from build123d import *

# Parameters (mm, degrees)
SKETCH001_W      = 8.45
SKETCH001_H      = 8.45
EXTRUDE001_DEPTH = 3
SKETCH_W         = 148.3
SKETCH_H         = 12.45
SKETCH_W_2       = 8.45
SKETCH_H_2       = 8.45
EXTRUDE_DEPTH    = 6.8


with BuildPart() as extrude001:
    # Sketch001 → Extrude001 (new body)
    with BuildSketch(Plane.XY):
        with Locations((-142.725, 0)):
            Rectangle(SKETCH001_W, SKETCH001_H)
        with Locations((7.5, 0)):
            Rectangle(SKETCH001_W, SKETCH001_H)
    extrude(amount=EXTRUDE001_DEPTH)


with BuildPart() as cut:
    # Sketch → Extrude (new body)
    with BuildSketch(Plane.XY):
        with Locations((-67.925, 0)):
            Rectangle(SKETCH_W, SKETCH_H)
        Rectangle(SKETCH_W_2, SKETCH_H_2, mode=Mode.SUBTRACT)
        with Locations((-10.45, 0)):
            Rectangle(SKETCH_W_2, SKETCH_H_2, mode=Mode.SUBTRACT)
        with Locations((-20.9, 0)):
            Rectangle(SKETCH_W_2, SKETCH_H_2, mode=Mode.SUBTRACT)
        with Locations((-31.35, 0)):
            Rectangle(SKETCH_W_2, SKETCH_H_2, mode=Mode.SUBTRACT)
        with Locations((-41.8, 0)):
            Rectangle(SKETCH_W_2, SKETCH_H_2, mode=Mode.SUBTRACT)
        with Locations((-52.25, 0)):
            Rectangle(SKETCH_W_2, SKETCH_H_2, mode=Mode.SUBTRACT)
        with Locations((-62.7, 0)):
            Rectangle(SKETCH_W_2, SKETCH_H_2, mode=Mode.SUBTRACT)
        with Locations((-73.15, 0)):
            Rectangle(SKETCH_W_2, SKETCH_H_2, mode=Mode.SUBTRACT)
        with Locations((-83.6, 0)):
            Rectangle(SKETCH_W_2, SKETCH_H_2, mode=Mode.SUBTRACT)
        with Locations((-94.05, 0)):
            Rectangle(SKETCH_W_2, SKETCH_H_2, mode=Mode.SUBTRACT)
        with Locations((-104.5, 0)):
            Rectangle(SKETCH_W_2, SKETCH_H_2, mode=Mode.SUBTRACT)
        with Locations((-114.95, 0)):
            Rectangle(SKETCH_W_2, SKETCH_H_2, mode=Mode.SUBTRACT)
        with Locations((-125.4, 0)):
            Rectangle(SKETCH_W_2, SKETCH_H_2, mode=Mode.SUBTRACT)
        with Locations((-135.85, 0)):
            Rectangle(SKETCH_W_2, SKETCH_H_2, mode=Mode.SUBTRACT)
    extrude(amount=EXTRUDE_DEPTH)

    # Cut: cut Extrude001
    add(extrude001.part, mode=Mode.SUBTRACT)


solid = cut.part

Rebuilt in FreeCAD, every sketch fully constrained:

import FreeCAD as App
import Part
import Sketcher
Q = App.Units.Quantity

doc = App.newDocument("Part")
params = doc.addObject("Spreadsheet::Sheet", "Params")
for row, (alias, value) in enumerate([
    ("sketch1_width", "8.45 mm"),
    ("pad1_length", "3 mm"),
    ("sketch2_width", "148.3 mm"),
    ("pad2_length", "6.8 mm"),
], start=1):
    params.set(f"A{row}", alias)
    params.set(f"B{row}", "=" + value)
    params.setAlias(f"B{row}", alias)

body = doc.addObject("PartDesign::Body", "Body")
body.AllowCompound = True

sketch1 = body.newObject("Sketcher::SketchObject", "Sketch")
sketch1.AttachmentSupport = (doc.getObject("XY_Plane"), [""])
sketch1.MapMode = "FlatFace"
sketch1.addGeometry(Part.LineSegment(App.Vector(-147, 4, 0), App.Vector(-147, -4, 0)), False)
sketch1.addGeometry(Part.LineSegment(App.Vector(-147, -4, 0), App.Vector(-138, -4, 0)), False)
sketch1.addGeometry(Part.LineSegment(App.Vector(-138, -4, 0), App.Vector(-138, 4, 0)), False)
sketch1.addGeometry(Part.LineSegment(App.Vector(-138, 4, 0), App.Vector(-147, 4, 0)), False)
sketch1.addGeometry(Part.LineSegment(App.Vector(3, 4, 0), App.Vector(3, -4, 0)), False)
sketch1.addGeometry(Part.LineSegment(App.Vector(3, -4, 0), App.Vector(12, -4, 0)), False)
sketch1.addGeometry(Part.LineSegment(App.Vector(12, -4, 0), App.Vector(12, 4, 0)), False)
sketch1.addGeometry(Part.LineSegment(App.Vector(12, 4, 0), App.Vector(3, 4, 0)), False)
sketch1.addConstraint(Sketcher.Constraint("Coincident", 0, 2, 1, 1))
sketch1.addConstraint(Sketcher.Constraint("Coincident", 1, 2, 2, 1))
sketch1.addConstraint(Sketcher.Constraint("Coincident", 2, 2, 3, 1))
sketch1.addConstraint(Sketcher.Constraint("Coincident", 3, 2, 0, 1))
sketch1.addConstraint(Sketcher.Constraint("Coincident", 4, 2, 5, 1))
sketch1.addConstraint(Sketcher.Constraint("Coincident", 5, 2, 6, 1))
sketch1.addConstraint(Sketcher.Constraint("Coincident", 6, 2, 7, 1))
sketch1.addConstraint(Sketcher.Constraint("Coincident", 7, 2, 4, 1))
sketch1.addConstraint(Sketcher.Constraint("Vertical", 0))
sketch1.addConstraint(Sketcher.Constraint("Horizontal", 1))
sketch1.addConstraint(Sketcher.Constraint("Vertical", 2))
sketch1.addConstraint(Sketcher.Constraint("Horizontal", 3))
sketch1.addConstraint(Sketcher.Constraint("Vertical", 4))
sketch1.addConstraint(Sketcher.Constraint("Horizontal", 5))
sketch1.addConstraint(Sketcher.Constraint("Vertical", 6))
sketch1.addConstraint(Sketcher.Constraint("Horizontal", 7))
sketch1.addConstraint(Sketcher.Constraint("Horizontal", 1, 2, 4, 2))
sketch1.addConstraint(Sketcher.Constraint("Horizontal", 3, 2, 6, 2))
sketch1.addConstraint(Sketcher.Constraint("Equal", 3, 5))
sketch1.addConstraint(Sketcher.Constraint("Equal", 7, 0))
sketch1.addConstraint(Sketcher.Constraint("DistanceX", 1, 1, 1, 2, Q("8.45 mm")))
sketch1.addConstraint(Sketcher.Constraint("DistanceX", 1, 2, -1, 1, Q("138.5 mm")))
sketch1.addConstraint(Sketcher.Constraint("DistanceY", 0, 2, -1, 1, Q("4.225 mm")))
sketch1.addConstraint(Sketcher.Constraint("DistanceX", -1, 1, 4, 2, Q("3.275 mm")))
sketch1.setExpression("Constraints[20]", "Params.sketch1_width")
pad1 = body.newObject("PartDesign::Pad", "Pad")
pad1.Profile = sketch1
pad1.setExpression("Length", "Params.pad1_length")
body2 = doc.addObject("PartDesign::Body", "Body001")

sketch2 = body2.newObject("Sketcher::SketchObject", "Sketch001")
sketch2.AttachmentSupport = (doc.getObject("XY_Plane001"), [""])
sketch2.MapMode = "FlatFace"
sketch2.addGeometry(Part.LineSegment(App.Vector(-142, 6, 0), App.Vector(-142, -6, 0)), False)
sketch2.addGeometry(Part.LineSegment(App.Vector(-142, -6, 0), App.Vector(6, -6, 0)), False)
sketch2.addGeometry(Part.LineSegment(App.Vector(6, -6, 0), App.Vector(6, 6, 0)), False)
sketch2.addGeometry(Part.LineSegment(App.Vector(6, 6, 0), App.Vector(-142, 6, 0)), False)
sketch2.addGeometry(Part.LineSegment(App.Vector(-132, -4, 0), App.Vector(-140, -4, 0)), False)
sketch2.addGeometry(Part.LineSegment(App.Vector(-140, -4, 0), App.Vector(-140, 4, 0)), False)
sketch2.addGeometry(Part.LineSegment(App.Vector(-140, 4, 0), App.Vector(-132, 4, 0)), False)
sketch2.addGeometry(Part.LineSegment(App.Vector(-132, 4, 0), App.Vector(-132, -4, 0)), False)
sketch2.addGeometry(Part.LineSegment(App.Vector(-121, -4, 0), App.Vector(-130, -4, 0)), False)
sketch2.addGeometry(Part.LineSegment(App.Vector(-130, -4, 0), App.Vector(-130, 4, 0)), False)
sketch2.addGeometry(Part.LineSegment(App.Vector(-130, 4, 0), App.Vector(-121, 4, 0)), False)
sketch2.addGeometry(Part.LineSegment(App.Vector(-121, 4, 0), App.Vector(-121, -4, 0)), False)
sketch2.addGeometry(Part.LineSegment(App.Vector(-111, -4, 0), App.Vector(-119, -4, 0)), False)
sketch2.addGeometry(Part.LineSegment(App.Vector(-119, -4, 0), App.Vector(-119, 4, 0)), False)
sketch2.addGeometry(Part.LineSegment(App.Vector(-119, 4, 0), App.Vector(-111, 4, 0)), False)
sketch2.addGeometry(Part.LineSegment(App.Vector(-111, 4, 0), App.Vector(-111, -4, 0)), False)
sketch2.addGeometry(Part.LineSegment(App.Vector(-100, -4, 0), App.Vector(-109, -4, 0)), False)
sketch2.addGeometry(Part.LineSegment(App.Vector(-109, -4, 0), App.Vector(-109, 4, 0)), False)
sketch2.addGeometry(Part.LineSegment(App.Vector(-109, 4, 0), App.Vector(-100, 4, 0)), False)
sketch2.addGeometry(Part.LineSegment(App.Vector(-100, 4, 0), App.Vector(-100, -4, 0)), False)
sketch2.addGeometry(Part.LineSegment(App.Vector(-90, -4, 0), App.Vector(-98, -4, 0)), False)
sketch2.addGeometry(Part.LineSegment(App.Vector(-98, -4, 0), App.Vector(-98, 4, 0)), False)
sketch2.addGeometry(Part.LineSegment(App.Vector(-98, 4, 0), App.Vector(-90, 4, 0)), False)
sketch2.addGeometry(Part.LineSegment(App.Vector(-90, 4, 0), App.Vector(-90, -4, 0)), False)
sketch2.addGeometry(Part.LineSegment(App.Vector(-79, -4, 0), App.Vector(-88, -4, 0)), False)
sketch2.addGeometry(Part.LineSegment(App.Vector(-88, -4, 0), App.Vector(-88, 4, 0)), False)
sketch2.addGeometry(Part.LineSegment(App.Vector(-88, 4, 0), App.Vector(-79, 4, 0)), False)
sketch2.addGeometry(Part.LineSegment(App.Vector(-79, 4, 0), App.Vector(-79, -4, 0)), False)
sketch2.addGeometry(Part.LineSegment(App.Vector(-69, -4, 0), App.Vector(-77, -4, 0)), False)
sketch2.addGeometry(Part.LineSegment(App.Vector(-77, -4, 0), App.Vector(-77, 4, 0)), False)
sketch2.addGeometry(Part.LineSegment(App.Vector(-77, 4, 0), App.Vector(-69, 4, 0)), False)
sketch2.addGeometry(Part.LineSegment(App.Vector(-69, 4, 0), App.Vector(-69, -4, 0)), False)
sketch2.addGeometry(Part.LineSegment(App.Vector(-58, -4, 0), App.Vector(-67, -4, 0)), False)
sketch2.addGeometry(Part.LineSegment(App.Vector(-67, -4, 0), App.Vector(-67, 4, 0)), False)
sketch2.addGeometry(Part.LineSegment(App.Vector(-67, 4, 0), App.Vector(-58, 4, 0)), False)
sketch2.addGeometry(Part.LineSegment(App.Vector(-58, 4, 0), App.Vector(-58, -4, 0)), False)
sketch2.addGeometry(Part.LineSegment(App.Vector(-48, -4, 0), App.Vector(-56, -4, 0)), False)
sketch2.addGeometry(Part.LineSegment(App.Vector(-56, -4, 0), App.Vector(-56, 4, 0)), False)
sketch2.addGeometry(Part.LineSegment(App.Vector(-56, 4, 0), App.Vector(-48, 4, 0)), False)
sketch2.addGeometry(Part.LineSegment(App.Vector(-48, 4, 0), App.Vector(-48, -4, 0)), False)
sketch2.addGeometry(Part.LineSegment(App.Vector(-38, -4, 0), App.Vector(-46, -4, 0)), False)
sketch2.addGeometry(Part.LineSegment(App.Vector(-46, -4, 0), App.Vector(-46, 4, 0)), False)
sketch2.addGeometry(Part.LineSegment(App.Vector(-46, 4, 0), App.Vector(-38, 4, 0)), False)
sketch2.addGeometry(Part.LineSegment(App.Vector(-38, 4, 0), App.Vector(-38, -4, 0)), False)
sketch2.addGeometry(Part.LineSegment(App.Vector(-27, -4, 0), App.Vector(-36, -4, 0)), False)
sketch2.addGeometry(Part.LineSegment(App.Vector(-36, -4, 0), App.Vector(-36, 4, 0)), False)
sketch2.addGeometry(Part.LineSegment(App.Vector(-36, 4, 0), App.Vector(-27, 4, 0)), False)
sketch2.addGeometry(Part.LineSegment(App.Vector(-27, 4, 0), App.Vector(-27, -4, 0)), False)
sketch2.addGeometry(Part.LineSegment(App.Vector(-17, -4, 0), App.Vector(-25, -4, 0)), False)
sketch2.addGeometry(Part.LineSegment(App.Vector(-25, -4, 0), App.Vector(-25, 4, 0)), False)
sketch2.addGeometry(Part.LineSegment(App.Vector(-25, 4, 0), App.Vector(-17, 4, 0)), False)
sketch2.addGeometry(Part.LineSegment(App.Vector(-17, 4, 0), App.Vector(-17, -4, 0)), False)
sketch2.addGeometry(Part.LineSegment(App.Vector(-6, -4, 0), App.Vector(-15, -4, 0)), False)
sketch2.addGeometry(Part.LineSegment(App.Vector(-15, -4, 0), App.Vector(-15, 4, 0)), False)
sketch2.addGeometry(Part.LineSegment(App.Vector(-15, 4, 0), App.Vector(-6, 4, 0)), False)
sketch2.addGeometry(Part.LineSegment(App.Vector(-6, 4, 0), App.Vector(-6, -4, 0)), False)
sketch2.addGeometry(Part.LineSegment(App.Vector(4, -4, 0), App.Vector(-4, -4, 0)), False)
sketch2.addGeometry(Part.LineSegment(App.Vector(-4, -4, 0), App.Vector(-4, 4, 0)), False)
sketch2.addGeometry(Part.LineSegment(App.Vector(-4, 4, 0), App.Vector(4, 4, 0)), False)
sketch2.addGeometry(Part.LineSegment(App.Vector(4, 4, 0), App.Vector(4, -4, 0)), False)
sketch2.addConstraint(Sketcher.Constraint("Coincident", 0, 2, 1, 1))
sketch2.addConstraint(Sketcher.Constraint("Coincident", 1, 2, 2, 1))
sketch2.addConstraint(Sketcher.Constraint("Coincident", 2, 2, 3, 1))
sketch2.addConstraint(Sketcher.Constraint("Coincident", 3, 2, 0, 1))
sketch2.addConstraint(Sketcher.Constraint("Coincident", 4, 2, 5, 1))
sketch2.addConstraint(Sketcher.Constraint("Coincident", 5, 2, 6, 1))
sketch2.addConstraint(Sketcher.Constraint("Coincident", 6, 2, 7, 1))
sketch2.addConstraint(Sketcher.Constraint("Coincident", 7, 2, 4, 1))
sketch2.addConstraint(Sketcher.Constraint("Coincident", 8, 2, 9, 1))
sketch2.addConstraint(Sketcher.Constraint("Coincident", 9, 2, 10, 1))
sketch2.addConstraint(Sketcher.Constraint("Coincident", 10, 2, 11, 1))
sketch2.addConstraint(Sketcher.Constraint("Coincident", 11, 2, 8, 1))
sketch2.addConstraint(Sketcher.Constraint("Coincident", 12, 2, 13, 1))
sketch2.addConstraint(Sketcher.Constraint("Coincident", 13, 2, 14, 1))
sketch2.addConstraint(Sketcher.Constraint("Coincident", 14, 2, 15, 1))
sketch2.addConstraint(Sketcher.Constraint("Coincident", 15, 2, 12, 1))
sketch2.addConstraint(Sketcher.Constraint("Coincident", 16, 2, 17, 1))
sketch2.addConstraint(Sketcher.Constraint("Coincident", 17, 2, 18, 1))
sketch2.addConstraint(Sketcher.Constraint("Coincident", 18, 2, 19, 1))
sketch2.addConstraint(Sketcher.Constraint("Coincident", 19, 2, 16, 1))
sketch2.addConstraint(Sketcher.Constraint("Coincident", 20, 2, 21, 1))
sketch2.addConstraint(Sketcher.Constraint("Coincident", 21, 2, 22, 1))
sketch2.addConstraint(Sketcher.Constraint("Coincident", 22, 2, 23, 1))
sketch2.addConstraint(Sketcher.Constraint("Coincident", 23, 2, 20, 1))
sketch2.addConstraint(Sketcher.Constraint("Coincident", 24, 2, 25, 1))
sketch2.addConstraint(Sketcher.Constraint("Coincident", 25, 2, 26, 1))
sketch2.addConstraint(Sketcher.Constraint("Coincident", 26, 2, 27, 1))
sketch2.addConstraint(Sketcher.Constraint("Coincident", 27, 2, 24, 1))
sketch2.addConstraint(Sketcher.Constraint("Coincident", 28, 2, 29, 1))
sketch2.addConstraint(Sketcher.Constraint("Coincident", 29, 2, 30, 1))
sketch2.addConstraint(Sketcher.Constraint("Coincident", 30, 2, 31, 1))
sketch2.addConstraint(Sketcher.Constraint("Coincident", 31, 2, 28, 1))
sketch2.addConstraint(Sketcher.Constraint("Coincident", 32, 2, 33, 1))
sketch2.addConstraint(Sketcher.Constraint("Coincident", 33, 2, 34, 1))
sketch2.addConstraint(Sketcher.Constraint("Coincident", 34, 2, 35, 1))
sketch2.addConstraint(Sketcher.Constraint("Coincident", 35, 2, 32, 1))
sketch2.addConstraint(Sketcher.Constraint("Coincident", 36, 2, 37, 1))
sketch2.addConstraint(Sketcher.Constraint("Coincident", 37, 2, 38, 1))
sketch2.addConstraint(Sketcher.Constraint("Coincident", 38, 2, 39, 1))
sketch2.addConstraint(Sketcher.Constraint("Coincident", 39, 2, 36, 1))
sketch2.addConstraint(Sketcher.Constraint("Coincident", 40, 2, 41, 1))
sketch2.addConstraint(Sketcher.Constraint("Coincident", 41, 2, 42, 1))
sketch2.addConstraint(Sketcher.Constraint("Coincident", 42, 2, 43, 1))
sketch2.addConstraint(Sketcher.Constraint("Coincident", 43, 2, 40, 1))
sketch2.addConstraint(Sketcher.Constraint("Coincident", 44, 2, 45, 1))
sketch2.addConstraint(Sketcher.Constraint("Coincident", 45, 2, 46, 1))
sketch2.addConstraint(Sketcher.Constraint("Coincident", 46, 2, 47, 1))
sketch2.addConstraint(Sketcher.Constraint("Coincident", 47, 2, 44, 1))
sketch2.addConstraint(Sketcher.Constraint("Coincident", 48, 2, 49, 1))
sketch2.addConstraint(Sketcher.Constraint("Coincident", 49, 2, 50, 1))
sketch2.addConstraint(Sketcher.Constraint("Coincident", 50, 2, 51, 1))
sketch2.addConstraint(Sketcher.Constraint("Coincident", 51, 2, 48, 1))
sketch2.addConstraint(Sketcher.Constraint("Coincident", 52, 2, 53, 1))
sketch2.addConstraint(Sketcher.Constraint("Coincident", 53, 2, 54, 1))
sketch2.addConstraint(Sketcher.Constraint("Coincident", 54, 2, 55, 1))
sketch2.addConstraint(Sketcher.Constraint("Coincident", 55, 2, 52, 1))
sketch2.addConstraint(Sketcher.Constraint("Coincident", 56, 2, 57, 1))
sketch2.addConstraint(Sketcher.Constraint("Coincident", 57, 2, 58, 1))
sketch2.addConstraint(Sketcher.Constraint("Coincident", 58, 2, 59, 1))
sketch2.addConstraint(Sketcher.Constraint("Coincident", 59, 2, 56, 1))
sketch2.addConstraint(Sketcher.Constraint("Vertical", 0))
sketch2.addConstraint(Sketcher.Constraint("Horizontal", 1))
sketch2.addConstraint(Sketcher.Constraint("Vertical", 2))
sketch2.addConstraint(Sketcher.Constraint("Horizontal", 3))
sketch2.addConstraint(Sketcher.Constraint("Horizontal", 4))
sketch2.addConstraint(Sketcher.Constraint("Vertical", 5))
sketch2.addConstraint(Sketcher.Constraint("Horizontal", 6))
sketch2.addConstraint(Sketcher.Constraint("Vertical", 7))
sketch2.addConstraint(Sketcher.Constraint("Horizontal", 8))
sketch2.addConstraint(Sketcher.Constraint("Vertical", 9))
sketch2.addConstraint(Sketcher.Constraint("Horizontal", 10))
sketch2.addConstraint(Sketcher.Constraint("Vertical", 11))
sketch2.addConstraint(Sketcher.Constraint("Horizontal", 12))
sketch2.addConstraint(Sketcher.Constraint("Vertical", 13))
sketch2.addConstraint(Sketcher.Constraint("Horizontal", 14))
sketch2.addConstraint(Sketcher.Constraint("Vertical", 15))
sketch2.addConstraint(Sketcher.Constraint("Horizontal", 16))
sketch2.addConstraint(Sketcher.Constraint("Vertical", 17))
sketch2.addConstraint(Sketcher.Constraint("Horizontal", 18))
sketch2.addConstraint(Sketcher.Constraint("Vertical", 19))
sketch2.addConstraint(Sketcher.Constraint("Horizontal", 20))
sketch2.addConstraint(Sketcher.Constraint("Vertical", 21))
sketch2.addConstraint(Sketcher.Constraint("Horizontal", 22))
sketch2.addConstraint(Sketcher.Constraint("Vertical", 23))
sketch2.addConstraint(Sketcher.Constraint("Horizontal", 24))
sketch2.addConstraint(Sketcher.Constraint("Vertical", 25))
sketch2.addConstraint(Sketcher.Constraint("Horizontal", 26))
sketch2.addConstraint(Sketcher.Constraint("Vertical", 27))
sketch2.addConstraint(Sketcher.Constraint("Horizontal", 28))
sketch2.addConstraint(Sketcher.Constraint("Vertical", 29))
sketch2.addConstraint(Sketcher.Constraint("Horizontal", 30))
sketch2.addConstraint(Sketcher.Constraint("Vertical", 31))
sketch2.addConstraint(Sketcher.Constraint("Horizontal", 32))
sketch2.addConstraint(Sketcher.Constraint("Vertical", 33))
sketch2.addConstraint(Sketcher.Constraint("Horizontal", 34))
sketch2.addConstraint(Sketcher.Constraint("Vertical", 35))
sketch2.addConstraint(Sketcher.Constraint("Horizontal", 36))
sketch2.addConstraint(Sketcher.Constraint("Vertical", 37))
sketch2.addConstraint(Sketcher.Constraint("Horizontal", 38))
sketch2.addConstraint(Sketcher.Constraint("Vertical", 39))
sketch2.addConstraint(Sketcher.Constraint("Horizontal", 40))
sketch2.addConstraint(Sketcher.Constraint("Vertical", 41))
sketch2.addConstraint(Sketcher.Constraint("Horizontal", 42))
sketch2.addConstraint(Sketcher.Constraint("Vertical", 43))
sketch2.addConstraint(Sketcher.Constraint("Horizontal", 44))
sketch2.addConstraint(Sketcher.Constraint("Vertical", 45))
sketch2.addConstraint(Sketcher.Constraint("Horizontal", 46))
sketch2.addConstraint(Sketcher.Constraint("Vertical", 47))
sketch2.addConstraint(Sketcher.Constraint("Horizontal", 48))
sketch2.addConstraint(Sketcher.Constraint("Vertical", 49))
sketch2.addConstraint(Sketcher.Constraint("Horizontal", 50))
sketch2.addConstraint(Sketcher.Constraint("Vertical", 51))
sketch2.addConstraint(Sketcher.Constraint("Horizontal", 52))
sketch2.addConstraint(Sketcher.Constraint("Vertical", 53))
sketch2.addConstraint(Sketcher.Constraint("Horizontal", 54))
sketch2.addConstraint(Sketcher.Constraint("Vertical", 55))
sketch2.addConstraint(Sketcher.Constraint("Horizontal", 56))
sketch2.addConstraint(Sketcher.Constraint("Vertical", 57))
sketch2.addConstraint(Sketcher.Constraint("Horizontal", 58))
sketch2.addConstraint(Sketcher.Constraint("Vertical", 59))
sketch2.addConstraint(Sketcher.Constraint("Symmetric", 56, 2, 58, 2, -1, 1))
sketch2.addConstraint(Sketcher.Constraint("Horizontal", 7, 2, 8, 2))
sketch2.addConstraint(Sketcher.Constraint("Horizontal", 6, 2, 9, 2))
sketch2.addConstraint(Sketcher.Constraint("Horizontal", 11, 2, 12, 2))
sketch2.addConstraint(Sketcher.Constraint("Horizontal", 10, 2, 13, 2))
sketch2.addConstraint(Sketcher.Constraint("Horizontal", 15, 2, 16, 2))
sketch2.addConstraint(Sketcher.Constraint("Horizontal", 14, 2, 17, 2))
sketch2.addConstraint(Sketcher.Constraint("Horizontal", 19, 2, 20, 2))
sketch2.addConstraint(Sketcher.Constraint("Horizontal", 18, 2, 21, 2))
sketch2.addConstraint(Sketcher.Constraint("Horizontal", 23, 2, 24, 2))
sketch2.addConstraint(Sketcher.Constraint("Horizontal", 22, 2, 25, 2))
sketch2.addConstraint(Sketcher.Constraint("Horizontal", 27, 2, 28, 2))
sketch2.addConstraint(Sketcher.Constraint("Horizontal", 26, 2, 29, 2))
sketch2.addConstraint(Sketcher.Constraint("Horizontal", 31, 2, 32, 2))
sketch2.addConstraint(Sketcher.Constraint("Horizontal", 30, 2, 33, 2))
sketch2.addConstraint(Sketcher.Constraint("Horizontal", 35, 2, 36, 2))
sketch2.addConstraint(Sketcher.Constraint("Horizontal", 34, 2, 37, 2))
sketch2.addConstraint(Sketcher.Constraint("Horizontal", 39, 2, 40, 2))
sketch2.addConstraint(Sketcher.Constraint("Horizontal", 38, 2, 41, 2))
sketch2.addConstraint(Sketcher.Constraint("Horizontal", 43, 2, 44, 2))
sketch2.addConstraint(Sketcher.Constraint("Horizontal", 42, 2, 45, 2))
sketch2.addConstraint(Sketcher.Constraint("Horizontal", 47, 2, 48, 2))
sketch2.addConstraint(Sketcher.Constraint("Horizontal", 46, 2, 49, 2))
sketch2.addConstraint(Sketcher.Constraint("Horizontal", 51, 2, 52, 2))
sketch2.addConstraint(Sketcher.Constraint("Horizontal", 50, 2, 53, 2))
sketch2.addConstraint(Sketcher.Constraint("Horizontal", 55, 2, 56, 2))
sketch2.addConstraint(Sketcher.Constraint("Horizontal", 54, 2, 57, 2))
sketch2.addConstraint(Sketcher.Constraint("Equal", 6, 8))
sketch2.addConstraint(Sketcher.Constraint("Equal", 10, 12))
sketch2.addConstraint(Sketcher.Constraint("Equal", 14, 16))
sketch2.addConstraint(Sketcher.Constraint("Equal", 18, 20))
sketch2.addConstraint(Sketcher.Constraint("Equal", 22, 24))
sketch2.addConstraint(Sketcher.Constraint("Equal", 26, 28))
sketch2.addConstraint(Sketcher.Constraint("Equal", 30, 32))
sketch2.addConstraint(Sketcher.Constraint("Equal", 34, 36))
sketch2.addConstraint(Sketcher.Constraint("Equal", 38, 40))
sketch2.addConstraint(Sketcher.Constraint("Equal", 42, 44))
sketch2.addConstraint(Sketcher.Constraint("Equal", 46, 48))
sketch2.addConstraint(Sketcher.Constraint("Equal", 50, 52))
sketch2.addConstraint(Sketcher.Constraint("Equal", 54, 56))
sketch2.addConstraint(Sketcher.Constraint("Equal", 58, 5))
sketch2.addConstraint(Sketcher.Constraint("DistanceX", 1, 1, 1, 2, Q("148.3 mm")))
sketch2.addConstraint(Sketcher.Constraint("DistanceX", 0, 2, 4, 2, Q("2 mm")))
sketch2.addConstraint(Sketcher.Constraint("DistanceY", 0, 2, 4, 2, Q("2 mm")))
sketch2.addConstraint(Sketcher.Constraint("DistanceY", 5, 2, 3, 2, Q("2 mm")))
sketch2.addConstraint(Sketcher.Constraint("DistanceX", 7, 2, 8, 2, Q("2 mm")))
sketch2.addConstraint(Sketcher.Constraint("DistanceX", 11, 2, 12, 2, Q("2 mm")))
sketch2.addConstraint(Sketcher.Constraint("DistanceX", 15, 2, 16, 2, Q("2 mm")))
sketch2.addConstraint(Sketcher.Constraint("DistanceX", 19, 2, 20, 2, Q("2 mm")))
sketch2.addConstraint(Sketcher.Constraint("DistanceX", 23, 2, 24, 2, Q("2 mm")))
sketch2.addConstraint(Sketcher.Constraint("DistanceX", 27, 2, 28, 2, Q("2 mm")))
sketch2.addConstraint(Sketcher.Constraint("DistanceX", 31, 2, 32, 2, Q("2 mm")))
sketch2.addConstraint(Sketcher.Constraint("DistanceX", 35, 2, 36, 2, Q("2 mm")))
sketch2.addConstraint(Sketcher.Constraint("DistanceX", 39, 2, 40, 2, Q("2 mm")))
sketch2.addConstraint(Sketcher.Constraint("DistanceX", 43, 2, 44, 2, Q("2 mm")))
sketch2.addConstraint(Sketcher.Constraint("DistanceX", 47, 2, 48, 2, Q("2 mm")))
sketch2.addConstraint(Sketcher.Constraint("DistanceX", 51, 2, 52, 2, Q("2 mm")))
sketch2.addConstraint(Sketcher.Constraint("DistanceX", 55, 2, 56, 2, Q("2 mm")))
sketch2.addConstraint(Sketcher.Constraint("DistanceX", 58, 2, 2, 2, Q("2 mm")))
sketch2.setExpression("Constraints[161]", "Params.sketch2_width")
pad2 = body2.newObject("PartDesign::Pad", "Pad001")
pad2.Profile = sketch2
pad2.setExpression("Length", "Params.pad2_length")
doc.recompute()

boolean = body2.newObject("PartDesign::Boolean", "Boolean")
boolean.Type = "Cut"
boolean.addObjects([body])

doc.recompute()
